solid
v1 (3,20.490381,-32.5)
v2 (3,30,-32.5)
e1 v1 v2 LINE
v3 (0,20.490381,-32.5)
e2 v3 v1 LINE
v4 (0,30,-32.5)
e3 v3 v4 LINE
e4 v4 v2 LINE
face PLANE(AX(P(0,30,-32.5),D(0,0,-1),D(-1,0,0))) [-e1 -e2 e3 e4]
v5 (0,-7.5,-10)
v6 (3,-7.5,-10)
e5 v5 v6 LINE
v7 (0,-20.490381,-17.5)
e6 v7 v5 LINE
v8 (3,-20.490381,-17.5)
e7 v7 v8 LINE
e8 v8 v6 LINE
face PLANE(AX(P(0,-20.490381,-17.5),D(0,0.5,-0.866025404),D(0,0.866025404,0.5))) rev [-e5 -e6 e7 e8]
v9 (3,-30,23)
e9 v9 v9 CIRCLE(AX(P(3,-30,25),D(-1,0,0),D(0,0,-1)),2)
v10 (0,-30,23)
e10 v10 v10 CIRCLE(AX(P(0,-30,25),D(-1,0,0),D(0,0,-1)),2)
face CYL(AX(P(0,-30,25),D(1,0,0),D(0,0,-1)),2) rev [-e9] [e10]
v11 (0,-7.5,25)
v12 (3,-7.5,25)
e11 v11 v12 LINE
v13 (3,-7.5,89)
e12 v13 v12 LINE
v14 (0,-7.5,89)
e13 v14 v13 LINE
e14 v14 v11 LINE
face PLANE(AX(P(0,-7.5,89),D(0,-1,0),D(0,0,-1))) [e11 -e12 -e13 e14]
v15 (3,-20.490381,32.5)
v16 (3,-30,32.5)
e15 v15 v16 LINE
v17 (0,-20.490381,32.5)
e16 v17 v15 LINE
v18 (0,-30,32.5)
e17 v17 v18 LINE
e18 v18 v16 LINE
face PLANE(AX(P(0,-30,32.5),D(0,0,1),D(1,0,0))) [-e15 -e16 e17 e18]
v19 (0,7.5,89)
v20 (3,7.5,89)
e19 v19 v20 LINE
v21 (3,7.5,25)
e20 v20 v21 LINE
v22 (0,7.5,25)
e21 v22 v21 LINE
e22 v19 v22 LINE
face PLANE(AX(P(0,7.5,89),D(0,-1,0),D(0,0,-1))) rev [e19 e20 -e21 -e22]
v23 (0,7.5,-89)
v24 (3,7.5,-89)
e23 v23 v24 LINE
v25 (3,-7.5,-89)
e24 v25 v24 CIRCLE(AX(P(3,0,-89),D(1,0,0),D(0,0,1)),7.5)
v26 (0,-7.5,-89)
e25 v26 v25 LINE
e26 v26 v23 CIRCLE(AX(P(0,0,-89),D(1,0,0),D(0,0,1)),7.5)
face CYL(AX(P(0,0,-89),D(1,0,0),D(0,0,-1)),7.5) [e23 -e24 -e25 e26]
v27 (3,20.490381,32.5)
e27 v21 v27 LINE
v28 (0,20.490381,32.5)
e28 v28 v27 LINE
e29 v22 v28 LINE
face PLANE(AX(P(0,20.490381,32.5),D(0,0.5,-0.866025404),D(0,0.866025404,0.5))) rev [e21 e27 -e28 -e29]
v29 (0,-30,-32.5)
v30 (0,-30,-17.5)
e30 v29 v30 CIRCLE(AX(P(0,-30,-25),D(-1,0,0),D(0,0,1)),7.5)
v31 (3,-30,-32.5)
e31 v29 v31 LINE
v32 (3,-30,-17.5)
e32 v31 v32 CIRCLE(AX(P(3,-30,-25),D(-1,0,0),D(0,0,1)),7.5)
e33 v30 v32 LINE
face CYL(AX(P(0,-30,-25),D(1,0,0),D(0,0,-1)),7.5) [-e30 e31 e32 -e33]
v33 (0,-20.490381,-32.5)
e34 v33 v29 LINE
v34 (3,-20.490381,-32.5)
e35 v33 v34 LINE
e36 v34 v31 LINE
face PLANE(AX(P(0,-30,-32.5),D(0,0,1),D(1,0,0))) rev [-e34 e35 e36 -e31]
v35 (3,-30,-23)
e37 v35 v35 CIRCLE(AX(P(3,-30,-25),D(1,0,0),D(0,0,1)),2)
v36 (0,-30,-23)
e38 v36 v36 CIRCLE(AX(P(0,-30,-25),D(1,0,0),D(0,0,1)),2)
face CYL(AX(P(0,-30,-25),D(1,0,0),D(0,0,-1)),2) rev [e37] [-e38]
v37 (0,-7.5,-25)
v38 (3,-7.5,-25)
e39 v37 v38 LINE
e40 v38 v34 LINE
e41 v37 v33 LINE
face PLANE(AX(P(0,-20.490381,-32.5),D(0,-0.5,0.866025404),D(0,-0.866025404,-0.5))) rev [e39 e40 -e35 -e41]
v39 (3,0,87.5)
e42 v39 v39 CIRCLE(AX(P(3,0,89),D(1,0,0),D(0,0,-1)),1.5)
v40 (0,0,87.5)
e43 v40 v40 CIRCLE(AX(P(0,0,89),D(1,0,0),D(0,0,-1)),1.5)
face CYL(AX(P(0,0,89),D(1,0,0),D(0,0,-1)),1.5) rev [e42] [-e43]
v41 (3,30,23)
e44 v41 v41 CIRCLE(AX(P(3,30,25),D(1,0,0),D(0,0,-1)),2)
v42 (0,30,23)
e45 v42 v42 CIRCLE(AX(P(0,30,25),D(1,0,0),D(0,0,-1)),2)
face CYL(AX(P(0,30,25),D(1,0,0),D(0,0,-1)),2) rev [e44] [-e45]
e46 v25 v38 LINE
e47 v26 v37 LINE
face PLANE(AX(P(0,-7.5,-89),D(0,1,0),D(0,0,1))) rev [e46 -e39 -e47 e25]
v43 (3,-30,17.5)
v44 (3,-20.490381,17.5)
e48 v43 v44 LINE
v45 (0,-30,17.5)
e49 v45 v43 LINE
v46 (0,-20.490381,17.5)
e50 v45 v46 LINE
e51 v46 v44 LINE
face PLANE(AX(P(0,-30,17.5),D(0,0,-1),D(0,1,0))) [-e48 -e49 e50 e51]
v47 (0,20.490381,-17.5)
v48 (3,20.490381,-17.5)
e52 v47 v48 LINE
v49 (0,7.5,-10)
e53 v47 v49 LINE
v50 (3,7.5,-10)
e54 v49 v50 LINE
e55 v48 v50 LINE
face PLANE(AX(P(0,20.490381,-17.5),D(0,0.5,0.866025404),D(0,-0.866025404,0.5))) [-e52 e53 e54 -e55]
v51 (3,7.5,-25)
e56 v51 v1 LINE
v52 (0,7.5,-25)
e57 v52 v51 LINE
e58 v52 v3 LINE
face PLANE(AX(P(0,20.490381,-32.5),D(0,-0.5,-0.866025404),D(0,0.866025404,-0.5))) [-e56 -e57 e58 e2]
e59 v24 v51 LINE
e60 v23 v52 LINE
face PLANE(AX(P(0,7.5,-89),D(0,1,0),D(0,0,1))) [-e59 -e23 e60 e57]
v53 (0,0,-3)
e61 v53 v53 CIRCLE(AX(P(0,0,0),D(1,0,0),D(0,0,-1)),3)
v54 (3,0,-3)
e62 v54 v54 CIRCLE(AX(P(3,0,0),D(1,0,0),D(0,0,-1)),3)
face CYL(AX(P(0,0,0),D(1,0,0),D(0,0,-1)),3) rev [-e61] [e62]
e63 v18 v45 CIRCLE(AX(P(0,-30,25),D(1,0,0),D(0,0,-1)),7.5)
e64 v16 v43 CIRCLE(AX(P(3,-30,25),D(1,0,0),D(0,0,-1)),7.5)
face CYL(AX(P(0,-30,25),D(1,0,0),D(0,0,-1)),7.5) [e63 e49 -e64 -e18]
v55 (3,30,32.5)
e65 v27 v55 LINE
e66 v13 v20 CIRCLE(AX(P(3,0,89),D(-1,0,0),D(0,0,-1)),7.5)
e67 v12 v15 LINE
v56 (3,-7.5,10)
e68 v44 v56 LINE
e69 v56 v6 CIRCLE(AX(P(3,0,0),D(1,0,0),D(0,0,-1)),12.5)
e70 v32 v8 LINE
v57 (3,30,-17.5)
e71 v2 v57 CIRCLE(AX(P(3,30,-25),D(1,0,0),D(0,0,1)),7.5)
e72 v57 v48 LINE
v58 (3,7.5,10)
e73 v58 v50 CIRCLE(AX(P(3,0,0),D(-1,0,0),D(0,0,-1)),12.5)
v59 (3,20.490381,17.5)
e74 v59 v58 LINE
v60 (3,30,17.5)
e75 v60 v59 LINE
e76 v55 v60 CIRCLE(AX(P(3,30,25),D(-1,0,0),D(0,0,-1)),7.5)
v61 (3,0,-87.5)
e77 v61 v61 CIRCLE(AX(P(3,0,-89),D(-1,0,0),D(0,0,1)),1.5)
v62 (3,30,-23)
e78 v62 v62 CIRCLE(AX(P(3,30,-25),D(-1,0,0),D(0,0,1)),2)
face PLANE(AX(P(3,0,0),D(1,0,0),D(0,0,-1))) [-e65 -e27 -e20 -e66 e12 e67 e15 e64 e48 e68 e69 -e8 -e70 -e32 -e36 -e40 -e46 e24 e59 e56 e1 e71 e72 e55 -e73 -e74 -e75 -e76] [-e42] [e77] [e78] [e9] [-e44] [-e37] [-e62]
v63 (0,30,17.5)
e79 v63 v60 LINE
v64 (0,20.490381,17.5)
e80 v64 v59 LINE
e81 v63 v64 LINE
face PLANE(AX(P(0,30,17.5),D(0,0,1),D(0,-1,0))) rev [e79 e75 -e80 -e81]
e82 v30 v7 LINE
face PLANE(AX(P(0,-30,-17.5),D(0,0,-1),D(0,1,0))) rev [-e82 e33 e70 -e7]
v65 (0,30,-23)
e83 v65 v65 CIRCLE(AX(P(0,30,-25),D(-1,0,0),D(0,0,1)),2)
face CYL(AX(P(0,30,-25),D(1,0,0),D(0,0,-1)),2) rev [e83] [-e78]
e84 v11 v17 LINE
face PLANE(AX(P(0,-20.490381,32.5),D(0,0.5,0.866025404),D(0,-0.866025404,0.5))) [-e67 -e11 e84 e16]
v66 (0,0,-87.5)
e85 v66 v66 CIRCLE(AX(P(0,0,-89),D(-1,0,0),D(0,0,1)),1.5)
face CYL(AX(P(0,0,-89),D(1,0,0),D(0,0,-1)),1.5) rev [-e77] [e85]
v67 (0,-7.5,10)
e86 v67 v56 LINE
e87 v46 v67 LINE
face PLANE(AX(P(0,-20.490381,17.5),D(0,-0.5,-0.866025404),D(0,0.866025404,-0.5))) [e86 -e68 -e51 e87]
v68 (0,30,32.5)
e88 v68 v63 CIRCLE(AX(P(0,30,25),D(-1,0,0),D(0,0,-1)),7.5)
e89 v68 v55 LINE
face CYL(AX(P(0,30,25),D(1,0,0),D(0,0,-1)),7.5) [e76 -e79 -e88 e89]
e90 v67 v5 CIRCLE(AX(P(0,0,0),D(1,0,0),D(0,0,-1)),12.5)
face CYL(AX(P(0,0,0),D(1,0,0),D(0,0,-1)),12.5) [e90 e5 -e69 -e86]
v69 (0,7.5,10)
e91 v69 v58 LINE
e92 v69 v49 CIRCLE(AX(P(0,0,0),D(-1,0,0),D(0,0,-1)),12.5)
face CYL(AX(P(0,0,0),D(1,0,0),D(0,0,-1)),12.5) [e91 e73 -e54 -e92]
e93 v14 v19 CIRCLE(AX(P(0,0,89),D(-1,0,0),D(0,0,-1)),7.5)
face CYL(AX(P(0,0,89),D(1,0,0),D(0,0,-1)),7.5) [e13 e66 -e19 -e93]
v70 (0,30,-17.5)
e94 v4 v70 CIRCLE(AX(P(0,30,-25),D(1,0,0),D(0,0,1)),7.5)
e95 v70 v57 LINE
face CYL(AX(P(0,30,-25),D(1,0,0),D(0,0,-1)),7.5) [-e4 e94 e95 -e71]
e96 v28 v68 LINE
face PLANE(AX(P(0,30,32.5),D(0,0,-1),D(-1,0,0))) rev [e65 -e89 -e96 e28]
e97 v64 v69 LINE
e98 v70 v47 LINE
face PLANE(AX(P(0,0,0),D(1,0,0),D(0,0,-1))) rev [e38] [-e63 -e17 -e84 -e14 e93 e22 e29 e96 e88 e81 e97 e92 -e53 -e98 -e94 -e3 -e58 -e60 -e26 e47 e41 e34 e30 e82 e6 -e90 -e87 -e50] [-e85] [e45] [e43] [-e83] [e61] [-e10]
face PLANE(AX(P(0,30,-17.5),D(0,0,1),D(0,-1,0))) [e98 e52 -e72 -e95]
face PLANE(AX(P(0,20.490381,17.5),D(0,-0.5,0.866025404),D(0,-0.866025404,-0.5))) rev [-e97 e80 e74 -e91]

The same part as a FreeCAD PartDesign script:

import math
import FreeCAD as App
import Part
import Sketcher
from FreeCAD import Vector
Q = App.Units.Quantity


def add_polygon(sketch, points):
    """Adds a closed chain of lines whose ends are joined by coincident constraints."""
    first, n = sketch.GeometryCount, len(points)
    for a, b in zip(points, points[1:] + points[:1]):
        sketch.addGeometry(Part.LineSegment(App.Vector(*a, 0), App.Vector(*b, 0)), False)
    for i in range(n):
        sketch.addConstraint(Sketcher.Constraint("Coincident", first + i, 2, first + (i + 1) % n, 1))

doc = App.newDocument("Part")
body = doc.addObject("PartDesign::Body", "Body")

sketch1 = body.newObject("Sketcher::SketchObject", "Sketch")
sketch1.AttachmentSupport = (doc.getObject("YZ_Plane"), [""])
sketch1.MapMode = "FlatFace"
add_polygon(sketch1, [(45, 105), (-45, 105), (-45, -105), (45, -105)])
sketch1.addConstraint(Sketcher.Constraint("Horizontal", 0))
sketch1.addConstraint(Sketcher.Constraint("Vertical", 1))
sketch1.addConstraint(Sketcher.Constraint("Horizontal", 2))
sketch1.addConstraint(Sketcher.Constraint("Vertical", 3))
sketch1.addConstraint(Sketcher.Constraint("Symmetric", 0, 2, 2, 2, -1, 1))
sketch1.addConstraint(Sketcher.Constraint("DistanceX", 0, 2, 0, 1, 90.0))
sketch1.addConstraint(Sketcher.Constraint("DistanceY", 1, 2, 1, 1, 210.0))
pad1 = body.newObject("PartDesign::Pad", "Pad")
pad1.Profile = sketch1
pad1.Length = 3

sketch2 = body.newObject("Sketcher::SketchObject", "Sketch001")
sketch2.AttachmentSupport = (doc.getObject("YZ_Plane"), [""])
sketch2.MapMode = "FlatFace"
sketch2.AttachmentOffset = App.Placement(Vector(0, 0, 3), App.Rotation())
sketch2.addGeometry(Part.Circle(Vector(0, 89, 0), Vector(0, 0, 1), 1.5), False)
sketch2.addConstraint(Sketcher.Constraint("PointOnObject", 0, 3, -2))
sketch2.addConstraint(Sketcher.Constraint("Diameter", 0, 3.0))
sketch2.addConstraint(Sketcher.Constraint("DistanceY", -1, 1, 0, 3, 89.0))
pocket1 = body.newObject("PartDesign::Pocket", "Pocket")
pocket1.Profile = sketch2
pocket1.Type = "ThroughAll"

sketch3 = body.newObject("Sketcher::SketchObject", "Sketch002")
sketch3.AttachmentSupport = (doc.getObject("YZ_Plane"), [""])
sketch3.MapMode = "FlatFace"
sketch3.AttachmentOffset = App.Placement(Vector(0, 0, 3), App.Rotation())
sketch3.addGeometry(Part.Circle(Vector(30, 25, 0), Vector(0, 0, 1), 2), False)
sketch3.addConstraint(Sketcher.Constraint("Diameter", 0, 4.0))
sketch3.addConstraint(Sketcher.Constraint("DistanceX", -1, 1, 0, 3, 30.0))
sketch3.addConstraint(Sketcher.Constraint("DistanceY", -1, 1, 0, 3, 25.0))
pocket2 = body.newObject("PartDesign::Pocket", "Pocket001")
pocket2.Profile = sketch3
pocket2.Type = "ThroughAll"

sketch4 = body.newObject("Sketcher::SketchObject", "Sketch003")
sketch4.AttachmentSupport = (doc.getObject("YZ_Plane"), [""])
sketch4.MapMode = "FlatFace"
sketch4.AttachmentOffset = App.Placement(Vector(0, 0, 3), App.Rotation())
sketch4.addGeometry(Part.LineSegment(Vector(45, 105, 0), Vector(0, 105, 0)), False)
sketch4.addGeometry(Part.LineSegment(Vector(0, 105, 0), Vector(0, 96.5, 0)), False)
sketch4.addGeometry(Part.ArcOfCircle(Part.Circle(Vector(0, 89, 0), Vector(0, 0, 1), 7.5), math.radians(0), math.radians(90)), False)
sketch4.addGeometry(Part.LineSegment(Vector(7.5, 89, 0), Vector(7.5, 25, 0)), False)
sketch4.addGeometry(Part.LineSegment(Vector(7.5, 25, 0), Vector(20.490381, 32.5, 0)), False)
sketch4.addGeometry(Part.LineSegment(Vector(20.490381, 32.5, 0), Vector(30, 32.5, 0)), False)
sketch4.addGeometry(Part.ArcOfCircle(Part.Circle(Vector(30, 25, 0), Vector(0, 0, 1), 7.5), math.radians(-90), math.radians(90)), False)
sketch4.addGeometry(Part.LineSegment(Vector(30, 17.5, 0), Vector(20.490381, 17.5, 0)), False)
sketch4.addGeometry(Part.LineSegment(Vector(20.490381, 17.5, 0), Vector(7.5, 10, 0)), False)
sketch4.addGeometry(Part.ArcOfCircle(Part.Circle(Vector(0, 0, 0), Vector(0, 0, 1), 12.5), math.radians(0), math.radians(53.130102)), False)
sketch4.addGeometry(Part.LineSegment(Vector(12.5, 0, 0), Vector(45, 0, 0)), False)
sketch4.addGeometry(Part.LineSegment(Vector(45, 0, 0), Vector(45, 105, 0)), False)
sketch4.addConstraint(Sketcher.Constraint("Coincident", 0, 2, 1, 1))
sketch4.addConstraint(Sketcher.Constraint("Coincident", 1, 2, 2, 2))
sketch4.addConstraint(Sketcher.Constraint("Tangent", 2, 1, 3, 1))
sketch4.addConstraint(Sketcher.Constraint("Coincident", 3, 2, 4, 1))
sketch4.addConstraint(Sketcher.Constraint("Coincident", 4, 2, 5, 1))
sketch4.addConstraint(Sketcher.Constraint("Tangent", 5, 2, 6, 2))
sketch4.addConstraint(Sketcher.Constraint("Tangent", 6, 1, 7, 1))
sketch4.addConstraint(Sketcher.Constraint("Coincident", 7, 2, 8, 1))
sketch4.addConstraint(Sketcher.Constraint("Coincident", 8, 2, 9, 2))
sketch4.addConstraint(Sketcher.Constraint("Coincident", 9, 1, 10, 1))
sketch4.addConstraint(Sketcher.Constraint("Coincident", 10, 2, 11, 1))
sketch4.addConstraint(Sketcher.Constraint("Coincident", 11, 2, 0, 1))
sketch4.addConstraint(Sketcher.Constraint("Horizontal", 0))
sketch4.addConstraint(Sketcher.Constraint("Vertical", 1))
sketch4.addConstraint(Sketcher.Constraint("Vertical", 3))
sketch4.addConstraint(Sketcher.Constraint("Horizontal", 5))
sketch4.addConstraint(Sketcher.Constraint("Horizontal", 7))
sketch4.addConstraint(Sketcher.Constraint("Horizontal", 10))
sketch4.addConstraint(Sketcher.Constraint("Vertical", 11))
sketch4.addConstraint(Sketcher.Constraint("Coincident", 9, 3, -1, 1))
sketch4.addConstraint(Sketcher.Constraint("Equal", 2, 6))
sketch4.addConstraint(Sketcher.Constraint("PointOnObject", 2, 3, -2))
sketch4.addConstraint(Sketcher.Constraint("PointOnObject", 0, 2, -2))
sketch4.addConstraint(Sketcher.Constraint("PointOnObject", 9, 1, -1))
sketch4.addConstraint(Sketcher.Constraint("Parallel", 4, 8))
sketch4.addConstraint(Sketcher.Constraint("Horizontal", 6, 3, 3, 2))
sketch4.addConstraint(Sketcher.Constraint("Vertical", 4, 2, 7, 2))
sketch4.addConstraint(Sketcher.Constraint("Vertical", 3, 2, 8, 2))
sketch4.addConstraint(Sketcher.Constraint("Radius", 2, 7.5))
sketch4.addConstraint(Sketcher.Constraint("Radius", 9, 12.5))
sketch4.addConstraint(Sketcher.Constraint("DistanceX", 0, 2, 0, 1, 45.0))
sketch4.addConstraint(Sketcher.Constraint("DistanceY", 3, 2, 3, 1, 64.0))
sketch4.addConstraint(Sketcher.Constraint("DistanceY", 11, 1, 11, 2, 105.0))
sketch4.addConstraint(Sketcher.Constraint("Angle", 4, Q("30 deg")))
sketch4.addConstraint(Sketcher.Constraint("DistanceX", -1, 1, 6, 3, 30.0))
pocket3 = body.newObject("PartDesign::Pocket", "Pocket002")
pocket3.Profile = sketch4
pocket3.Type = "ThroughAll"
doc.recompute()

mirrored = body.newObject("PartDesign::Mirrored", "Mirrored")
mirrored.Originals = [pocket2, pocket3]
mirrored.MirrorPlane = (doc.getObject("XZ_Plane"), [""])
body.Tip = mirrored
doc.recompute()

mirrored2 = body.newObject("PartDesign::Mirrored", "Mirrored001")
mirrored2.Originals = [pocket3, pocket1, pocket2]
mirrored2.MirrorPlane = (doc.getObject("XY_Plane"), [""])
body.Tip = mirrored2

sketch5 = body.newObject("Sketcher::SketchObject", "Sketch004")
sketch5.AttachmentSupport = (doc.getObject("YZ_Plane"), [""])
sketch5.MapMode = "FlatFace"
sketch5.AttachmentOffset = App.Placement(Vector(0, 0, 3), App.Rotation())
sketch5.addGeometry(Part.Circle(Vector(-30, -25, 0), Vector(0, 0, 1), 2), False)
sketch5.addConstraint(Sketcher.Constraint("Diameter", 0, 4.0))
sketch5.addConstraint(Sketcher.Constraint("DistanceX", 0, 3, -1, 1, 30.0))
sketch5.addConstraint(Sketcher.Constraint("DistanceY", 0, 3, -1, 1, 25.0))
pocket4 = body.newObject("PartDesign::Pocket", "Pocket003")
pocket4.Profile = sketch5
pocket4.Type = "ThroughAll"

sketch6 = body.newObject("Sketcher::SketchObject", "Sketch005")
sketch6.AttachmentSupport = (doc.getObject("YZ_Plane"), [""])
sketch6.MapMode = "FlatFace"
sketch6.AttachmentOffset = App.Placement(Vector(0, 0, 3), App.Rotation())
sketch6.addGeometry(Part.LineSegment(Vector(-45, -105, 0), Vector(0, -105, 0)), False)
sketch6.addGeometry(Part.LineSegment(Vector(0, -105, 0), Vector(0, -96.5, 0)), False)
sketch6.addGeometry(Part.ArcOfCircle(Part.Circle(Vector(0, -89, 0), Vector(0, 0, 1), 7.5), math.radians(180), math.radians(270)), False)
sketch6.addGeometry(Part.LineSegment(Vector(-7.5, -89, 0), Vector(-7.5, -25, 0)), False)
sketch6.addGeometry(Part.LineSegment(Vector(-7.5, -25, 0), Vector(-20.490381, -32.5, 0)), False)
sketch6.addGeometry(Part.LineSegment(Vector(-20.490381, -32.5, 0), Vector(-30, -32.5, 0)), False)
sketch6.addGeometry(Part.ArcOfCircle(Part.Circle(Vector(-30, -25, 0), Vector(0, 0, 1), 7.5), math.radians(90), math.radians(270)), False)
sketch6.addGeometry(Part.LineSegment(Vector(-30, -17.5, 0), Vector(-20.490381, -17.5, 0)), False)
sketch6.addGeometry(Part.LineSegment(Vector(-20.490381, -17.5, 0), Vector(-7.5, -10, 0)), False)
sketch6.addGeometry(Part.ArcOfCircle(Part.Circle(Vector(0, 0, 0), Vector(0, 0, 1), 12.5), math.radians(-180), math.radians(-126.869898)), False)
sketch6.addGeometry(Part.LineSegment(Vector(-12.5, 0, 0), Vector(-45, 0, 0)), False)
sketch6.addGeometry(Part.LineSegment(Vector(-45, 0, 0), Vector(-45, -105, 0)), False)
sketch6.addConstraint(Sketcher.Constraint("Coincident", 0, 2, 1, 1))
sketch6.addConstraint(Sketcher.Constraint("Coincident", 1, 2, 2, 2))
sketch6.addConstraint(Sketcher.Constraint("Tangent", 2, 1, 3, 1))
sketch6.addConstraint(Sketcher.Constraint("Coincident", 3, 2, 4, 1))
sketch6.addConstraint(Sketcher.Constraint("Coincident", 4, 2, 5, 1))
sketch6.addConstraint(Sketcher.Constraint("Tangent", 5, 2, 6, 2))
sketch6.addConstraint(Sketcher.Constraint("Tangent", 6, 1, 7, 1))
sketch6.addConstraint(Sketcher.Constraint("Coincident", 7, 2, 8, 1))
sketch6.addConstraint(Sketcher.Constraint("Coincident", 8, 2, 9, 2))
sketch6.addConstraint(Sketcher.Constraint("Coincident", 9, 1, 10, 1))
sketch6.addConstraint(Sketcher.Constraint("Coincident", 10, 2, 11, 1))
sketch6.addConstraint(Sketcher.Constraint("Coincident", 11, 2, 0, 1))
sketch6.addConstraint(Sketcher.Constraint("Horizontal", 0))
sketch6.addConstraint(Sketcher.Constraint("Vertical", 1))
sketch6.addConstraint(Sketcher.Constraint("Vertical", 3))
sketch6.addConstraint(Sketcher.Constraint("Horizontal", 5))
sketch6.addConstraint(Sketcher.Constraint("Horizontal", 7))
sketch6.addConstraint(Sketcher.Constraint("Horizontal", 10))
sketch6.addConstraint(Sketcher.Constraint("Vertical", 11))
sketch6.addConstraint(Sketcher.Constraint("Coincident", 9, 3, -1, 1))
sketch6.addConstraint(Sketcher.Constraint("Equal", 2, 6))
sketch6.addConstraint(Sketcher.Constraint("PointOnObject", 2, 3, -2))
sketch6.addConstraint(Sketcher.Constraint("PointOnObject", 0, 2, -2))
sketch6.addConstraint(Sketcher.Constraint("PointOnObject", 9, 1, -1))
sketch6.addConstraint(Sketcher.Constraint("Parallel", 4, 8))
sketch6.addConstraint(Sketcher.Constraint("Horizontal", 6, 3, 3, 2))
sketch6.addConstraint(Sketcher.Constraint("Vertical", 4, 2, 7, 2))
sketch6.addConstraint(Sketcher.Constraint("Vertical", 3, 2, 8, 2))
sketch6.addConstraint(Sketcher.Constraint("Radius", 2, 7.5))
sketch6.addConstraint(Sketcher.Constraint("Radius", 9, 12.5))
sketch6.addConstraint(Sketcher.Constraint("DistanceX", 0, 1, 0, 2, 45.0))
sketch6.addConstraint(Sketcher.Constraint("DistanceY", 3, 1, 3, 2, 64.0))
sketch6.addConstraint(Sketcher.Constraint("DistanceY", 11, 2, 11, 1, 105.0))
sketch6.addConstraint(Sketcher.Constraint("Angle", 4, Q("-150 deg")))
sketch6.addConstraint(Sketcher.Constraint("DistanceX", 6, 3, -1, 1, 30.0))
pocket5 = body.newObject("PartDesign::Pocket", "Pocket004")
pocket5.Profile = sketch6
pocket5.Type = "ThroughAll"

sketch7 = body.newObject("Sketcher::SketchObject", "Sketch006")
sketch7.AttachmentSupport = (doc.getObject("YZ_Plane"), [""])
sketch7.MapMode = "FlatFace"
sketch7.AttachmentOffset = App.Placement(Vector(0, 0, 3), App.Rotation())
sketch7.addGeometry(Part.Circle(Vector(0, 0, 0), Vector(0, 0, 1), 3), False)
sketch7.addConstraint(Sketcher.Constraint("Coincident", 0, 3, -1, 1))
sketch7.addConstraint(Sketcher.Constraint("Diameter", 0, 6.0))
pocket6 = body.newObject("PartDesign::Pocket", "Pocket005")
pocket6.Profile = sketch7
pocket6.Type = "ThroughAll"

doc.recompute()
